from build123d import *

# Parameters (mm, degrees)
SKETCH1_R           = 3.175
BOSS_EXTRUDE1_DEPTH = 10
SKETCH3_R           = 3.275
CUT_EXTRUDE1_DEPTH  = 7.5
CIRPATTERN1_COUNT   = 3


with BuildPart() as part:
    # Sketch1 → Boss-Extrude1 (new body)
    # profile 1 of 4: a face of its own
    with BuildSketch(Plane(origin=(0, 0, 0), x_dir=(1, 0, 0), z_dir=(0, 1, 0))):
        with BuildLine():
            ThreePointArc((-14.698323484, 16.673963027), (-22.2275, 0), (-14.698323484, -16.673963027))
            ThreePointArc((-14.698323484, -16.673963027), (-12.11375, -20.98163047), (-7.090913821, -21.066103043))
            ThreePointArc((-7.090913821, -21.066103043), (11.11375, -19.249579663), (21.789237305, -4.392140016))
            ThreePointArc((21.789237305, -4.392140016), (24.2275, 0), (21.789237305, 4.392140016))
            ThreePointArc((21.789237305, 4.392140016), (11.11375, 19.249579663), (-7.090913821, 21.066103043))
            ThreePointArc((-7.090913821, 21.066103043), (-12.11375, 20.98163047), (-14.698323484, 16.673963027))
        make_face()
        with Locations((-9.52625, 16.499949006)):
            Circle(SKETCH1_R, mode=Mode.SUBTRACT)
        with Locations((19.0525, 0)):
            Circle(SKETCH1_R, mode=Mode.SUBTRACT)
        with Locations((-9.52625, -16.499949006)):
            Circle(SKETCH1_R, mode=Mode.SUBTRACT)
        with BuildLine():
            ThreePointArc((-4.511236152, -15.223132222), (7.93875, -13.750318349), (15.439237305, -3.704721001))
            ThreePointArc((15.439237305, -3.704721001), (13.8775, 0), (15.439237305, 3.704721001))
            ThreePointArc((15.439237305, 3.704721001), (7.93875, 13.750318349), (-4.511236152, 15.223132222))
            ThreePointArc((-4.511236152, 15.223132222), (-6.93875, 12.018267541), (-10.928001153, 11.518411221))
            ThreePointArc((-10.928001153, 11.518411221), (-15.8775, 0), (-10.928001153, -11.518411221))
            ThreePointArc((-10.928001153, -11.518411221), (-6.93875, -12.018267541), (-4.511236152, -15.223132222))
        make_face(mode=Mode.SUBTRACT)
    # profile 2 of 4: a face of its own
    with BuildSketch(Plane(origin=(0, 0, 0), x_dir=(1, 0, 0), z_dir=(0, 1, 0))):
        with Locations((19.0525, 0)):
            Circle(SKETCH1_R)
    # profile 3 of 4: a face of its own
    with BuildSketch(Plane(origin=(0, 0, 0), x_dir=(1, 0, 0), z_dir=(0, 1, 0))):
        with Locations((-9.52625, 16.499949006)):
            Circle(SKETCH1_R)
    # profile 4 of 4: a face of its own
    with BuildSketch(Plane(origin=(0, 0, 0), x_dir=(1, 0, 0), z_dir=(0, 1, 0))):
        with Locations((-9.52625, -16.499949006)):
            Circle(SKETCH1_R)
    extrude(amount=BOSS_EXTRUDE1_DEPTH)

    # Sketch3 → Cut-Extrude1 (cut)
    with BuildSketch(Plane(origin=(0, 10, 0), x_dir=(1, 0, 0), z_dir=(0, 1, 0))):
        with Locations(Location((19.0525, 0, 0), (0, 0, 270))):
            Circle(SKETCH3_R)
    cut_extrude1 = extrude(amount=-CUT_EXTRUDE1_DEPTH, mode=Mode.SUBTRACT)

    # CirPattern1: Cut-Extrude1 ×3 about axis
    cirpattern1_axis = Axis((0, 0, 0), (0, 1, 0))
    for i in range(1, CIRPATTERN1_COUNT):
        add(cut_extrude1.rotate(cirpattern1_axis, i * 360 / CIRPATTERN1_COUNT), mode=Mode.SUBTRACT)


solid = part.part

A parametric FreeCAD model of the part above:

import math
import FreeCAD as App
import Part
import Sketcher

V = App.Vector

doc = App.newDocument("Part")
body = doc.addObject("PartDesign::Body", "Body")

# Sketch on XZ plane
sketch1 = body.newObject("Sketcher::SketchObject", "Sketch")
sketch1.AttachmentSupport = (doc.getObject("XZ_Plane"), [""])
sketch1.MapMode = "FlatFace"
sketch1.addGeometry([
    Part.ArcOfCircle(Part.Circle(V(0, 0, 0), V(0, 0, 1), 22), math.radians(131), math.radians(229)),  # 0
    Part.ArcOfCircle(Part.Circle(V(-10, 16, 0), V(0, 0, 1), 5), math.radians(62), math.radians(178)),  # 1
    Part.ArcOfCircle(Part.Circle(V(0, 0, 0), V(0, 0, 1), 22), math.radians(11), math.radians(109)),  # 2
    Part.ArcOfCircle(Part.Circle(V(19, 0, 0), V(0, 0, 1), 5), math.radians(-58), math.radians(58)),  # 3
    Part.ArcOfCircle(Part.Circle(V(0, 0, 0), V(0, 0, 1), 22), math.radians(-109), math.radians(-11)),  # 4
    Part.ArcOfCircle(Part.Circle(V(-10, -16, 0), V(0, 0, 1), 5), math.radians(-178), math.radians(-62)),  # 5
    Part.ArcOfCircle(Part.Circle(V(0, 0, 0), V(0, 0, 1), 16), math.radians(13), math.radians(107)),  # 6
    Part.ArcOfCircle(Part.Circle(V(-10, 16, 0), V(0, 0, 1), 5), math.radians(-106), math.radians(-14)),  # 7
    Part.ArcOfCircle(Part.Circle(V(0, 0, 0), V(0, 0, 1), 16), math.radians(133), math.radians(227)),  # 8
    Part.ArcOfCircle(Part.Circle(V(-10, -16, 0), V(0, 0, 1), 5), math.radians(14), math.radians(106)),  # 9
    Part.ArcOfCircle(Part.Circle(V(0, 0, 0), V(0, 0, 1), 16), math.radians(-107), math.radians(-13)),  # 10
    Part.ArcOfCircle(Part.Circle(V(19, 0, 0), V(0, 0, 1), 5), math.radians(134), math.radians(226)),  # 11
], False)
sketch1.addConstraint([
    Sketcher.Constraint("Coincident", 0, 1, 1, 2),
    Sketcher.Constraint("Coincident", 1, 1, 2, 2),
    Sketcher.Constraint("Coincident", 2, 1, 3, 2),
    Sketcher.Constraint("Coincident", 3, 1, 4, 2),
    Sketcher.Constraint("Coincident", 4, 1, 5, 2),
    Sketcher.Constraint("Coincident", 5, 1, 0, 2),
    Sketcher.Constraint("Coincident", 6, 2, 7, 2),
    Sketcher.Constraint("Coincident", 7, 1, 8, 1),
    Sketcher.Constraint("Coincident", 8, 2, 9, 2),
    Sketcher.Constraint("Coincident", 9, 1, 10, 1),
    Sketcher.Constraint("Coincident", 10, 2, 11, 2),
    Sketcher.Constraint("Coincident", 11, 1, 6, 1),
    Sketcher.Constraint("Coincident", 0, 3, -1, 1),
    Sketcher.Constraint("Coincident", 2, 3, -1, 1),
    Sketcher.Constraint("Coincident", 4, 3, -1, 1),
    Sketcher.Constraint("Coincident", 6, 3, -1, 1),
    Sketcher.Constraint("Coincident", 8, 3, -1, 1),
    Sketcher.Constraint("Coincident", 10, 3, -1, 1),
    Sketcher.Constraint("Coincident", 7, 3, 1, 3),
    Sketcher.Constraint("Coincident", 9, 3, 5, 3),
    Sketcher.Constraint("Coincident", 11, 3, 3, 3),
    Sketcher.Constraint("Equal", 0, 2),
    Sketcher.Constraint("Equal", 1, 3),
    Sketcher.Constraint("Equal", 2, 4),
    Sketcher.Constraint("Equal", 3, 5),
    Sketcher.Constraint("Equal", 5, 7),
    Sketcher.Constraint("Equal", 6, 8),
    Sketcher.Constraint("Equal", 7, 9),
    Sketcher.Constraint("Equal", 8, 10),
    Sketcher.Constraint("Equal", 9, 11),
    Sketcher.Constraint("Symmetric", 1, 3, 5, 3, -1),
    Sketcher.Constraint("PointOnObject", 3, 3, -1),
    Sketcher.Constraint("Radius", 1, 5.175),
    Sketcher.Constraint("Radius", 0, 22.2275),
    Sketcher.Constraint("Radius", 6, 15.8775),
    Sketcher.Constraint("DistanceX", 10, 2, 3, 1, 6.35),
    Sketcher.Constraint("DistanceX", 7, 1, -1, 1, 10.928001),
    Sketcher.Constraint("DistanceY", 5, 3, 1, 3, 32.999898),
])
pad1 = body.newObject("PartDesign::Pad", "Pad")
pad1.Profile = sketch1
pad1.Length = 10
pad1.Reversed = True

# Sketch on XZ plane
sketch2 = body.newObject("Sketcher::SketchObject", "Sketch001")
sketch2.AttachmentSupport = (doc.getObject("XZ_Plane"), [""])
sketch2.MapMode = "FlatFace"
sketch2.AttachmentOffset = App.Placement(V(0, 0, -10), App.Rotation())
sketch2.addGeometry(Part.Circle(V(19.1, 0, 0), V(0, 0, 1), 3.3), False)
sketch2.addConstraint([
    Sketcher.Constraint("PointOnObject", 0, 3, -1),
    Sketcher.Constraint("Diameter", 0, 6.55),
    Sketcher.Constraint("DistanceX", -1, 1, 0, 3, 19.0525),
])
pocket1 = body.newObject("PartDesign::Pocket", "Pocket")
pocket1.Profile = sketch2
pocket1.Length = 7.5
pocket1.Reversed = True
doc.recompute()

polarpattern = body.newObject("PartDesign::PolarPattern", "PolarPattern")
polarpattern.Originals = [pocket1]
polarpattern.Axis = (doc.getObject("Y_Axis"), [""])
polarpattern.Angle = 360
polarpattern.Occurrences = 3
body.Tip = polarpattern

doc.recompute()
